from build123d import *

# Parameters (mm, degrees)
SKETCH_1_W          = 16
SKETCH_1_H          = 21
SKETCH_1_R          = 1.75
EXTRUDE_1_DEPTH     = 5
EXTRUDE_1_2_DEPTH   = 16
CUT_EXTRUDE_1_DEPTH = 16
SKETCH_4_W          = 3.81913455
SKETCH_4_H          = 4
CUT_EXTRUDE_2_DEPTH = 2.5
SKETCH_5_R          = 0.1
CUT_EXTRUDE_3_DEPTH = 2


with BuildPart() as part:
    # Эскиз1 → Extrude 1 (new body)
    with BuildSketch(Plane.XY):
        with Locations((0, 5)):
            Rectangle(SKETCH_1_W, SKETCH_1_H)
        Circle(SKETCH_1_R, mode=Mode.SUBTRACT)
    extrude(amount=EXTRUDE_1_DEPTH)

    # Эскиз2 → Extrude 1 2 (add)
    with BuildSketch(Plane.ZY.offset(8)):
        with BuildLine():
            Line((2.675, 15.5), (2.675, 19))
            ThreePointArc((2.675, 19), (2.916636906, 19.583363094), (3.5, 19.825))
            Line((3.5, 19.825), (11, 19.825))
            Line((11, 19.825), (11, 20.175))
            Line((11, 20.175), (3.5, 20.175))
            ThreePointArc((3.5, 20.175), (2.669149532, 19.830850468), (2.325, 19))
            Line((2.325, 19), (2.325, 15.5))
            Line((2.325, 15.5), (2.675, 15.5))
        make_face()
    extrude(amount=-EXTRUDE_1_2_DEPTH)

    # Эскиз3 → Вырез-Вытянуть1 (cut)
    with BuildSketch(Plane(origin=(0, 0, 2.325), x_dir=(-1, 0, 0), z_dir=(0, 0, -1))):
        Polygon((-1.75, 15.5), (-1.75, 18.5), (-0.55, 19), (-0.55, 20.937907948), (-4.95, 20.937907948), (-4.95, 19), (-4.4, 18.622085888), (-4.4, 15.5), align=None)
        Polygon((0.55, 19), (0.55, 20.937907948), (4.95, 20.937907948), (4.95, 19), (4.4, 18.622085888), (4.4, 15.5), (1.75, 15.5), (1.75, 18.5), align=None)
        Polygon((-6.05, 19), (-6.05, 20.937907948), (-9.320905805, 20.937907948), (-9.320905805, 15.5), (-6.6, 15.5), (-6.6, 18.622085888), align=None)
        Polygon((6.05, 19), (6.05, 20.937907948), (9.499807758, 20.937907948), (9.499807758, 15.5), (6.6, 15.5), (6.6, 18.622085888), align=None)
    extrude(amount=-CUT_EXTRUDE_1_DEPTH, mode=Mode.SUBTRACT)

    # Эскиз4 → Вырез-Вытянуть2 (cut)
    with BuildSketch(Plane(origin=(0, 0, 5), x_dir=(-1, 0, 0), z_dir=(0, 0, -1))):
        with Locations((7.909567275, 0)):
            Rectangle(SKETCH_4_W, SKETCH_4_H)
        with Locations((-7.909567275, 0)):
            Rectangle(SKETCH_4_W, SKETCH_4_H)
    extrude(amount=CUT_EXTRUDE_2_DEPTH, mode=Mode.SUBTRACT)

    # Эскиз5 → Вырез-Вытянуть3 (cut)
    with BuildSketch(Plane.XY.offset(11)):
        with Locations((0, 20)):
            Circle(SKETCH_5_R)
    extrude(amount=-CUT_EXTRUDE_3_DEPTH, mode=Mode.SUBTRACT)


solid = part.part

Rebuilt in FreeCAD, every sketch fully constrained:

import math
import FreeCAD as App
import Part
import Sketcher
from FreeCAD import Vector

doc = App.newDocument("Part")
params = doc.addObject("Spreadsheet::Sheet", "Params")
for row, (alias, value) in enumerate([
    ("sketch1_diameter", "3.5 mm"),
    ("sketch1_width", "16 mm"),
    ("sketch1_height", "21 mm"),
    ("pad1_length", "5 mm"),
    ("sketch2_width", "3.5 mm"),
    ("sketch2_height", "7.5 mm"),
    ("pad2_length", "16 mm"),
    ("sketch3_height", "3 mm"),
    ("sketch3_width", "4.4 mm"),
    ("sketch3_length", "1.3 mm"),
    ("sketch3_width2", "2.65 mm"),
    ("pocket1_length", "16 mm"),
    ("sketch4_height", "4 mm"),
    ("pocket2_length", "2.5 mm"),
    ("sketch5_diameter", "0.2 mm"),
    ("pocket3_length", "2 mm"),
], start=1):
    params.set(f"A{row}", alias)
    params.set(f"B{row}", "=" + value)
    params.setAlias(f"B{row}", alias)

body = doc.addObject("PartDesign::Body", "Body")

# Sketch on XY plane
sketch1 = body.newObject("Sketcher::SketchObject", "Sketch")
sketch1.AttachmentSupport = (doc.getObject("XY_Plane"), [""])
sketch1.MapMode = "FlatFace"
sketch1.addGeometry([
    Part.LineSegment(Vector(-8, 15.5, 0), Vector(-8, -5.5, 0)),  # 0
    Part.LineSegment(Vector(-8, -5.5, 0), Vector(8, -5.5, 0)),  # 1
    Part.LineSegment(Vector(8, -5.5, 0), Vector(8, 15.5, 0)),  # 2
    Part.LineSegment(Vector(8, 15.5, 0), Vector(-8, 15.5, 0)),  # 3
    Part.Circle(Vector(0, 0, 0), Vector(0, 0, 1), 1.75),  # 4
], False)
sketch1.addConstraint([
    Sketcher.Constraint("Coincident", 0, 2, 1, 1),
    Sketcher.Constraint("Coincident", 1, 2, 2, 1),
    Sketcher.Constraint("Coincident", 2, 2, 3, 1),
    Sketcher.Constraint("Coincident", 3, 2, 0, 1),
    Sketcher.Constraint("Vertical", 0),
    Sketcher.Constraint("Horizontal", 1),
    Sketcher.Constraint("Vertical", 2),
    Sketcher.Constraint("Horizontal", 3),
    Sketcher.Constraint("Coincident", 4, 3, -1, 1),
    Sketcher.Constraint("Diameter", 4, 3.5),
    Sketcher.Constraint("DistanceX", 1, 1, 1, 2, 16.0),
    Sketcher.Constraint("DistanceY", 0, 2, 0, 1, 21.0),
    Sketcher.Constraint("DistanceX", 0, 2, -1, 1, 8.0),
    Sketcher.Constraint("DistanceY", 0, 2, -1, 1, 5.5),
])
sketch1.setExpression("Constraints[9]", "Params.sketch1_diameter")
sketch1.setExpression("Constraints[10]", "Params.sketch1_width")
sketch1.setExpression("Constraints[11]", "Params.sketch1_height")
pad1 = body.newObject("PartDesign::Pad", "Pad")
pad1.Profile = sketch1
pad1.setExpression("Length", "Params.pad1_length")

# Sketch on YZ plane
sketch2 = body.newObject("Sketcher::SketchObject", "Sketch001")
sketch2.AttachmentSupport = (doc.getObject("YZ_Plane"), [""])
sketch2.MapMode = "FlatFace"
sketch2.AttachmentOffset = App.Placement(Vector(0, 0, -8), App.Rotation())
sketch2.addGeometry([
    Part.LineSegment(Vector(15.5, 2.675, 0), Vector(19, 2.675, 0)),  # 0
    Part.ArcOfCircle(Part.Circle(Vector(19, 3.5, 0), Vector(0, 0, 1), 0.825), math.radians(-90), math.radians(0)),  # 1
    Part.LineSegment(Vector(19.825, 3.5, 0), Vector(19.825, 11, 0)),  # 2
    Part.LineSegment(Vector(19.825, 11, 0), Vector(20.175, 11, 0)),  # 3
    Part.LineSegment(Vector(20.175, 11, 0), Vector(20.175, 3.5, 0)),  # 4
    Part.ArcOfCircle(Part.Circle(Vector(19, 3.5, 0), Vector(0, 0, 1), 1.175), math.radians(-90), math.radians(0)),  # 5
    Part.LineSegment(Vector(19, 2.325, 0), Vector(15.5, 2.325, 0)),  # 6
    Part.LineSegment(Vector(15.5, 2.325, 0), Vector(15.5, 2.675, 0)),  # 7
], False)
sketch2.addConstraint([
    Sketcher.Constraint("Tangent", 0, 2, 1, 1),
    Sketcher.Constraint("Tangent", 1, 2, 2, 1),
    Sketcher.Constraint("Coincident", 2, 2, 3, 1),
    Sketcher.Constraint("Coincident", 3, 2, 4, 1),
    Sketcher.Constraint("Tangent", 4, 2, 5, 2),
    Sketcher.Constraint("Tangent", 5, 1, 6, 1),
    Sketcher.Constraint("Coincident", 6, 2, 7, 1),
    Sketcher.Constraint("Coincident", 7, 2, 0, 1),
    Sketcher.Constraint("Horizontal", 0),
    Sketcher.Constraint("Vertical", 2),
    Sketcher.Constraint("Horizontal", 3),
    Sketcher.Constraint("Vertical", 4),
    Sketcher.Constraint("Horizontal", 6),
    Sketcher.Constraint("Vertical", 7),
    Sketcher.Constraint("Coincident", 5, 3, 1, 3),
    Sketcher.Constraint("DistanceX", 0, 1, 0, 2, 3.5),
    Sketcher.Constraint("DistanceY", 2, 1, 2, 2, 7.5),
    Sketcher.Constraint("DistanceX", -1, 1, 1, 3, 19.0),
    Sketcher.Constraint("DistanceY", -1, 1, 2, 2, 11.0),
    Sketcher.Constraint("Radius", 1, 0.825),
    Sketcher.Constraint("Radius", 5, 1.175),
])
sketch2.setExpression("Constraints[15]", "Params.sketch2_width")
sketch2.setExpression("Constraints[16]", "Params.sketch2_height")
pad2 = body.newObject("PartDesign::Pad", "Pad001")
pad2.Profile = sketch2
pad2.setExpression("Length", "Params.pad2_length")

# Sketch on XY plane
sketch3 = body.newObject("Sketcher::SketchObject", "Sketch002")
sketch3.AttachmentSupport = (doc.getObject("XY_Plane"), [""])
sketch3.MapMode = "FlatFace"
sketch3.AttachmentOffset = App.Placement(Vector(0, 0, 2.325), App.Rotation())
sketch3.addGeometry([
    Part.LineSegment(Vector(1.75, 15.5, 0), Vector(1.75, 18.5, 0)),  # 0
    Part.LineSegment(Vector(1.75, 18.5, 0), Vector(0.55, 19, 0)),  # 1
    Part.LineSegment(Vector(0.55, 19, 0), Vector(0.55, 20.937908, 0)),  # 2
    Part.LineSegment(Vector(0.55, 20.937908, 0), Vector(4.95, 20.937908, 0)),  # 3
    Part.LineSegment(Vector(4.95, 20.937908, 0), Vector(4.95, 19, 0)),  # 4
    Part.LineSegment(Vector(4.95, 19, 0), Vector(4.4, 18.622086, 0)),  # 5
    Part.LineSegment(Vector(4.4, 18.622086, 0), Vector(4.4, 15.5, 0)),  # 6
    Part.LineSegment(Vector(4.4, 15.5, 0), Vector(1.75, 15.5, 0)),  # 7
    Part.LineSegment(Vector(-0.55, 20.937908, 0), Vector(-0.55, 19, 0)),  # 8
    Part.LineSegment(Vector(-0.55, 19, 0), Vector(-1.75, 18.5, 0)),  # 9
    Part.LineSegment(Vector(-1.75, 18.5, 0), Vector(-1.75, 15.5, 0)),  # 10
    Part.LineSegment(Vector(-1.75, 15.5, 0), Vector(-4.4, 15.5, 0)),  # 11
    Part.LineSegment(Vector(-4.4, 15.5, 0), Vector(-4.4, 18.622086, 0)),  # 12
    Part.LineSegment(Vector(-4.4, 18.622086, 0), Vector(-4.95, 19, 0)),  # 13
    Part.LineSegment(Vector(-4.95, 19, 0), Vector(-4.95, 20.937908, 0)),  # 14
    Part.LineSegment(Vector(-4.95, 20.937908, 0), Vector(-0.55, 20.937908, 0)),  # 15
    Part.LineSegment(Vector(6.05, 19, 0), Vector(6.05, 20.937908, 0)),  # 16
    Part.LineSegment(Vector(6.05, 20.937908, 0), Vector(9.320906, 20.937908, 0)),  # 17
    Part.LineSegment(Vector(9.320906, 20.937908, 0), Vector(9.320906, 15.5, 0)),  # 18
    Part.LineSegment(Vector(9.320906, 15.5, 0), Vector(6.6, 15.5, 0)),  # 19
    Part.LineSegment(Vector(6.6, 15.5, 0), Vector(6.6, 18.622086, 0)),  # 20
    Part.LineSegment(Vector(6.6, 18.622086, 0), Vector(6.05, 19, 0)),  # 21
    Part.LineSegment(Vector(-6.05, 20.937908, 0), Vector(-6.05, 19, 0)),  # 22
    Part.LineSegment(Vector(-6.05, 19, 0), Vector(-6.6, 18.622086, 0)),  # 23
    Part.LineSegment(Vector(-6.6, 18.622086, 0), Vector(-6.6, 15.5, 0)),  # 24
    Part.LineSegment(Vector(-6.6, 15.5, 0), Vector(-9.499808, 15.5, 0)),  # 25
    Part.LineSegment(Vector(-9.499808, 15.5, 0), Vector(-9.499808, 20.937908, 0)),  # 26
    Part.LineSegment(Vector(-9.499808, 20.937908, 0), Vector(-6.05, 20.937908, 0)),  # 27
], False)
sketch3.addConstraint([
    Sketcher.Constraint("Coincident", 0, 2, 1, 1),
    Sketcher.Constraint("Coincident", 1, 2, 2, 1),
    Sketcher.Constraint("Coincident", 2, 2, 3, 1),
    Sketcher.Constraint("Coincident", 3, 2, 4, 1),
    Sketcher.Constraint("Coincident", 4, 2, 5, 1),
    Sketcher.Constraint("Coincident", 5, 2, 6, 1),
    Sketcher.Constraint("Coincident", 6, 2, 7, 1),
    Sketcher.Constraint("Coincident", 7, 2, 0, 1),
    Sketcher.Constraint("Coincident", 8, 2, 9, 1),
    Sketcher.Constraint("Coincident", 9, 2, 10, 1),
    Sketcher.Constraint("Coincident", 10, 2, 11, 1),
    Sketcher.Constraint("Coincident", 11, 2, 12, 1),
    Sketcher.Constraint("Coincident", 12, 2, 13, 1),
    Sketcher.Constraint("Coincident", 13, 2, 14, 1),
    Sketcher.Constraint("Coincident", 14, 2, 15, 1),
    Sketcher.Constraint("Coincident", 15, 2, 8, 1),
    Sketcher.Constraint("Coincident", 16, 2, 17, 1),
    Sketcher.Constraint("Coincident", 17, 2, 18, 1),
    Sketcher.Constraint("Coincident", 18, 2, 19, 1),
    Sketcher.Constraint("Coincident", 19, 2, 20, 1),
    Sketcher.Constraint("Coincident", 20, 2, 21, 1),
    Sketcher.Constraint("Coincident", 21, 2, 16, 1),
    Sketcher.Constraint("Coincident", 22, 2, 23, 1),
    Sketcher.Constraint("Coincident", 23, 2, 24, 1),
    Sketcher.Constraint("Coincident", 24, 2, 25, 1),
    Sketcher.Constraint("Coincident", 25, 2, 26, 1),
    Sketcher.Constraint("Coincident", 26, 2, 27, 1),
    Sketcher.Constraint("Coincident", 27, 2, 22, 1),
    Sketcher.Constraint("Vertical", 0),
    Sketcher.Constraint("Vertical", 2),
    Sketcher.Constraint("Horizontal", 3),
    Sketcher.Constraint("Vertical", 4),
    Sketcher.Constraint("Vertical", 6),
    Sketcher.Constraint("Horizontal", 7),
    Sketcher.Constraint("Vertical", 8),
    Sketcher.Constraint("Vertical", 10),
    Sketcher.Constraint("Horizontal", 11),
    Sketcher.Constraint("Vertical", 12),
    Sketcher.Constraint("Vertical", 14),
    Sketcher.Constraint("Horizontal", 15),
    Sketcher.Constraint("Vertical", 16),
    Sketcher.Constraint("Horizontal", 17),
    Sketcher.Constraint("Vertical", 18),
    Sketcher.Constraint("Horizontal", 19),
    Sketcher.Constraint("Vertical", 20),
    Sketcher.Constraint("Vertical", 22),
    Sketcher.Constraint("Vertical", 24),
    Sketcher.Constraint("Horizontal", 25),
    Sketcher.Constraint("Vertical", 26),
    Sketcher.Constraint("Horizontal", 27),
    Sketcher.Constraint("Symmetric", 1, 2, 8, 2, -2),
    Sketcher.Constraint("Symmetric", 0, 2, 9, 2, -2),
    Sketcher.Constraint("Symmetric", 6, 2, 11, 2, -2),
    Sketcher.Constraint("Symmetric", 4, 2, 13, 2, -2),
    Sketcher.Constraint("Symmetric", 21, 2, 22, 2, -2),
    Sketcher.Constraint("Symmetric", 20, 2, 23, 2, -2),
    Sketcher.Constraint("Parallel", 13, 21),
    Sketcher.Constraint("Parallel", 5, 23),
    Sketcher.Constraint("Horizontal", 1, 2, 4, 2),
    Sketcher.Constraint("Horizontal", 3, 2, 14, 2),
    Sketcher.Constraint("Horizontal", 15, 2, 16, 2),
    Sketcher.Constraint("Horizontal", 11, 2, 18, 2),
    Sketcher.Constraint("Horizontal", 12, 2, 20, 2),
    Sketcher.Constraint("Horizontal", 13, 2, 21, 2),
    Sketcher.Constraint("Horizontal", 19, 2, 24, 2),
    Sketcher.Constraint("Horizontal", 17, 2, 26, 2),
    Sketcher.Constraint("DistanceY", 0, 1, 0, 2, 3.0),
    Sketcher.Constraint("DistanceX", 3, 1, 3, 2, 4.4),
    Sketcher.Constraint("DistanceY", -1, 1, 1, 2, 19.0),
    Sketcher.Constraint("Distance", 1, 1.3),
    Sketcher.Constraint("DistanceX", 7, 2, 7, 1, 2.65),
    Sketcher.Constraint("DistanceY", -1, 1, 0, 2, 18.5),
    Sketcher.Constraint("DistanceX", -1, 1, 5, 2, 4.4),
    Sketcher.Constraint("DistanceX", -1, 1, 19, 2, 6.6),
    Sketcher.Constraint("DistanceX", 17, 1, 17, 2, 3.270906),
    Sketcher.Constraint("DistanceX", 25, 2, 25, 1, 2.899808),
    Sketcher.Constraint("DistanceY", 2, 1, 2, 2, 1.937908),
    Sketcher.Constraint("DistanceY", 6, 2, 6, 1, 3.122086),
])
sketch3.setExpression("Constraints[66]", "Params.sketch3_height")
sketch3.setExpression("Constraints[67]", "Params.sketch3_width")
sketch3.setExpression("Constraints[69]", "Params.sketch3_length")
sketch3.setExpression("Constraints[70]", "Params.sketch3_width2")
pocket1 = body.newObject("PartDesign::Pocket", "Pocket")
pocket1.Profile = sketch3
pocket1.setExpression("Length", "Params.pocket1_length")
pocket1.Reversed = True

# Sketch on XY plane
sketch4 = body.newObject("Sketcher::SketchObject", "Sketch003")
sketch4.AttachmentSupport = (doc.getObject("XY_Plane"), [""])
sketch4.MapMode = "FlatFace"
sketch4.AttachmentOffset = App.Placement(Vector(0, 0, 5), App.Rotation())
sketch4.addGeometry([
    Part.LineSegment(Vector(-6, 2, 0), Vector(-6, -2, 0)),  # 0
    Part.LineSegment(Vector(-6, -2, 0), Vector(-9.819135, -2, 0)),  # 1
    Part.LineSegment(Vector(-9.819135, -2, 0), Vector(-9.819135, 2, 0)),  # 2
    Part.LineSegment(Vector(-9.819135, 2, 0), Vector(-6, 2, 0)),  # 3
    Part.LineSegment(Vector(9.819135, 2, 0), Vector(9.819135, -2, 0)),  # 4
    Part.LineSegment(Vector(9.819135, -2, 0), Vector(6, -2, 0)),  # 5
    Part.LineSegment(Vector(6, -2, 0), Vector(6, 2, 0)),  # 6
    Part.LineSegment(Vector(6, 2, 0), Vector(9.819135, 2, 0)),  # 7
], False)
sketch4.addConstraint([
    Sketcher.Constraint("Coincident", 0, 2, 1, 1),
    Sketcher.Constraint("Coincident", 1, 2, 2, 1),
    Sketcher.Constraint("Coincident", 2, 2, 3, 1),
    Sketcher.Constraint("Coincident", 3, 2, 0, 1),
    Sketcher.Constraint("Coincident", 4, 2, 5, 1),
    Sketcher.Constraint("Coincident", 5, 2, 6, 1),
    Sketcher.Constraint("Coincident", 6, 2, 7, 1),
    Sketcher.Constraint("Coincident", 7, 2, 4, 1),
    Sketcher.Constraint("Vertical", 0),
    Sketcher.Constraint("Horizontal", 1),
    Sketcher.Constraint("Vertical", 2),
    Sketcher.Constraint("Horizontal", 3),
    Sketcher.Constraint("Vertical", 4),
    Sketcher.Constraint("Horizontal", 5),
    Sketcher.Constraint("Vertical", 6),
    Sketcher.Constraint("Horizontal", 7),
    Sketcher.Constraint("Symmetric", 2, 2, 4, 2, -1, 1),
    Sketcher.Constraint("Symmetric", 0, 2, 6, 2, -1, 1),
    Sketcher.Constraint("Horizontal", 1, 2, 4, 2),
    Sketcher.Constraint("DistanceY", 0, 2, 0, 1, 4.0),
    Sketcher.Constraint("DistanceX", 0, 2, -1, 1, 6.0),
    Sketcher.Constraint("DistanceX", 1, 2, 1, 1, 3.819135),
])
sketch4.setExpression("Constraints[19]", "Params.sketch4_height")
pocket2 = body.newObject("PartDesign::Pocket", "Pocket001")
pocket2.Profile = sketch4
pocket2.setExpression("Length", "Params.pocket2_length")

# Sketch on XY plane
sketch5 = body.newObject("Sketcher::SketchObject", "Sketch004")
sketch5.AttachmentSupport = (doc.getObject("XY_Plane"), [""])
sketch5.MapMode = "FlatFace"
sketch5.AttachmentOffset = App.Placement(Vector(0, 0, 11), App.Rotation())
sketch5.addGeometry(Part.Circle(Vector(0, 20, 0), Vector(0, 0, 1), 0.1), False)
sketch5.addConstraint([
    Sketcher.Constraint("PointOnObject", 0, 3, -2),
    Sketcher.Constraint("Diameter", 0, 0.2),
    Sketcher.Constraint("DistanceY", -1, 1, 0, 3, 20.0),
])
sketch5.setExpression("Constraints[1]", "Params.sketch5_diameter")
pocket3 = body.newObject("PartDesign::Pocket", "Pocket002")
pocket3.Profile = sketch5
pocket3.setExpression("Length", "Params.pocket3_length")

doc.recompute()
